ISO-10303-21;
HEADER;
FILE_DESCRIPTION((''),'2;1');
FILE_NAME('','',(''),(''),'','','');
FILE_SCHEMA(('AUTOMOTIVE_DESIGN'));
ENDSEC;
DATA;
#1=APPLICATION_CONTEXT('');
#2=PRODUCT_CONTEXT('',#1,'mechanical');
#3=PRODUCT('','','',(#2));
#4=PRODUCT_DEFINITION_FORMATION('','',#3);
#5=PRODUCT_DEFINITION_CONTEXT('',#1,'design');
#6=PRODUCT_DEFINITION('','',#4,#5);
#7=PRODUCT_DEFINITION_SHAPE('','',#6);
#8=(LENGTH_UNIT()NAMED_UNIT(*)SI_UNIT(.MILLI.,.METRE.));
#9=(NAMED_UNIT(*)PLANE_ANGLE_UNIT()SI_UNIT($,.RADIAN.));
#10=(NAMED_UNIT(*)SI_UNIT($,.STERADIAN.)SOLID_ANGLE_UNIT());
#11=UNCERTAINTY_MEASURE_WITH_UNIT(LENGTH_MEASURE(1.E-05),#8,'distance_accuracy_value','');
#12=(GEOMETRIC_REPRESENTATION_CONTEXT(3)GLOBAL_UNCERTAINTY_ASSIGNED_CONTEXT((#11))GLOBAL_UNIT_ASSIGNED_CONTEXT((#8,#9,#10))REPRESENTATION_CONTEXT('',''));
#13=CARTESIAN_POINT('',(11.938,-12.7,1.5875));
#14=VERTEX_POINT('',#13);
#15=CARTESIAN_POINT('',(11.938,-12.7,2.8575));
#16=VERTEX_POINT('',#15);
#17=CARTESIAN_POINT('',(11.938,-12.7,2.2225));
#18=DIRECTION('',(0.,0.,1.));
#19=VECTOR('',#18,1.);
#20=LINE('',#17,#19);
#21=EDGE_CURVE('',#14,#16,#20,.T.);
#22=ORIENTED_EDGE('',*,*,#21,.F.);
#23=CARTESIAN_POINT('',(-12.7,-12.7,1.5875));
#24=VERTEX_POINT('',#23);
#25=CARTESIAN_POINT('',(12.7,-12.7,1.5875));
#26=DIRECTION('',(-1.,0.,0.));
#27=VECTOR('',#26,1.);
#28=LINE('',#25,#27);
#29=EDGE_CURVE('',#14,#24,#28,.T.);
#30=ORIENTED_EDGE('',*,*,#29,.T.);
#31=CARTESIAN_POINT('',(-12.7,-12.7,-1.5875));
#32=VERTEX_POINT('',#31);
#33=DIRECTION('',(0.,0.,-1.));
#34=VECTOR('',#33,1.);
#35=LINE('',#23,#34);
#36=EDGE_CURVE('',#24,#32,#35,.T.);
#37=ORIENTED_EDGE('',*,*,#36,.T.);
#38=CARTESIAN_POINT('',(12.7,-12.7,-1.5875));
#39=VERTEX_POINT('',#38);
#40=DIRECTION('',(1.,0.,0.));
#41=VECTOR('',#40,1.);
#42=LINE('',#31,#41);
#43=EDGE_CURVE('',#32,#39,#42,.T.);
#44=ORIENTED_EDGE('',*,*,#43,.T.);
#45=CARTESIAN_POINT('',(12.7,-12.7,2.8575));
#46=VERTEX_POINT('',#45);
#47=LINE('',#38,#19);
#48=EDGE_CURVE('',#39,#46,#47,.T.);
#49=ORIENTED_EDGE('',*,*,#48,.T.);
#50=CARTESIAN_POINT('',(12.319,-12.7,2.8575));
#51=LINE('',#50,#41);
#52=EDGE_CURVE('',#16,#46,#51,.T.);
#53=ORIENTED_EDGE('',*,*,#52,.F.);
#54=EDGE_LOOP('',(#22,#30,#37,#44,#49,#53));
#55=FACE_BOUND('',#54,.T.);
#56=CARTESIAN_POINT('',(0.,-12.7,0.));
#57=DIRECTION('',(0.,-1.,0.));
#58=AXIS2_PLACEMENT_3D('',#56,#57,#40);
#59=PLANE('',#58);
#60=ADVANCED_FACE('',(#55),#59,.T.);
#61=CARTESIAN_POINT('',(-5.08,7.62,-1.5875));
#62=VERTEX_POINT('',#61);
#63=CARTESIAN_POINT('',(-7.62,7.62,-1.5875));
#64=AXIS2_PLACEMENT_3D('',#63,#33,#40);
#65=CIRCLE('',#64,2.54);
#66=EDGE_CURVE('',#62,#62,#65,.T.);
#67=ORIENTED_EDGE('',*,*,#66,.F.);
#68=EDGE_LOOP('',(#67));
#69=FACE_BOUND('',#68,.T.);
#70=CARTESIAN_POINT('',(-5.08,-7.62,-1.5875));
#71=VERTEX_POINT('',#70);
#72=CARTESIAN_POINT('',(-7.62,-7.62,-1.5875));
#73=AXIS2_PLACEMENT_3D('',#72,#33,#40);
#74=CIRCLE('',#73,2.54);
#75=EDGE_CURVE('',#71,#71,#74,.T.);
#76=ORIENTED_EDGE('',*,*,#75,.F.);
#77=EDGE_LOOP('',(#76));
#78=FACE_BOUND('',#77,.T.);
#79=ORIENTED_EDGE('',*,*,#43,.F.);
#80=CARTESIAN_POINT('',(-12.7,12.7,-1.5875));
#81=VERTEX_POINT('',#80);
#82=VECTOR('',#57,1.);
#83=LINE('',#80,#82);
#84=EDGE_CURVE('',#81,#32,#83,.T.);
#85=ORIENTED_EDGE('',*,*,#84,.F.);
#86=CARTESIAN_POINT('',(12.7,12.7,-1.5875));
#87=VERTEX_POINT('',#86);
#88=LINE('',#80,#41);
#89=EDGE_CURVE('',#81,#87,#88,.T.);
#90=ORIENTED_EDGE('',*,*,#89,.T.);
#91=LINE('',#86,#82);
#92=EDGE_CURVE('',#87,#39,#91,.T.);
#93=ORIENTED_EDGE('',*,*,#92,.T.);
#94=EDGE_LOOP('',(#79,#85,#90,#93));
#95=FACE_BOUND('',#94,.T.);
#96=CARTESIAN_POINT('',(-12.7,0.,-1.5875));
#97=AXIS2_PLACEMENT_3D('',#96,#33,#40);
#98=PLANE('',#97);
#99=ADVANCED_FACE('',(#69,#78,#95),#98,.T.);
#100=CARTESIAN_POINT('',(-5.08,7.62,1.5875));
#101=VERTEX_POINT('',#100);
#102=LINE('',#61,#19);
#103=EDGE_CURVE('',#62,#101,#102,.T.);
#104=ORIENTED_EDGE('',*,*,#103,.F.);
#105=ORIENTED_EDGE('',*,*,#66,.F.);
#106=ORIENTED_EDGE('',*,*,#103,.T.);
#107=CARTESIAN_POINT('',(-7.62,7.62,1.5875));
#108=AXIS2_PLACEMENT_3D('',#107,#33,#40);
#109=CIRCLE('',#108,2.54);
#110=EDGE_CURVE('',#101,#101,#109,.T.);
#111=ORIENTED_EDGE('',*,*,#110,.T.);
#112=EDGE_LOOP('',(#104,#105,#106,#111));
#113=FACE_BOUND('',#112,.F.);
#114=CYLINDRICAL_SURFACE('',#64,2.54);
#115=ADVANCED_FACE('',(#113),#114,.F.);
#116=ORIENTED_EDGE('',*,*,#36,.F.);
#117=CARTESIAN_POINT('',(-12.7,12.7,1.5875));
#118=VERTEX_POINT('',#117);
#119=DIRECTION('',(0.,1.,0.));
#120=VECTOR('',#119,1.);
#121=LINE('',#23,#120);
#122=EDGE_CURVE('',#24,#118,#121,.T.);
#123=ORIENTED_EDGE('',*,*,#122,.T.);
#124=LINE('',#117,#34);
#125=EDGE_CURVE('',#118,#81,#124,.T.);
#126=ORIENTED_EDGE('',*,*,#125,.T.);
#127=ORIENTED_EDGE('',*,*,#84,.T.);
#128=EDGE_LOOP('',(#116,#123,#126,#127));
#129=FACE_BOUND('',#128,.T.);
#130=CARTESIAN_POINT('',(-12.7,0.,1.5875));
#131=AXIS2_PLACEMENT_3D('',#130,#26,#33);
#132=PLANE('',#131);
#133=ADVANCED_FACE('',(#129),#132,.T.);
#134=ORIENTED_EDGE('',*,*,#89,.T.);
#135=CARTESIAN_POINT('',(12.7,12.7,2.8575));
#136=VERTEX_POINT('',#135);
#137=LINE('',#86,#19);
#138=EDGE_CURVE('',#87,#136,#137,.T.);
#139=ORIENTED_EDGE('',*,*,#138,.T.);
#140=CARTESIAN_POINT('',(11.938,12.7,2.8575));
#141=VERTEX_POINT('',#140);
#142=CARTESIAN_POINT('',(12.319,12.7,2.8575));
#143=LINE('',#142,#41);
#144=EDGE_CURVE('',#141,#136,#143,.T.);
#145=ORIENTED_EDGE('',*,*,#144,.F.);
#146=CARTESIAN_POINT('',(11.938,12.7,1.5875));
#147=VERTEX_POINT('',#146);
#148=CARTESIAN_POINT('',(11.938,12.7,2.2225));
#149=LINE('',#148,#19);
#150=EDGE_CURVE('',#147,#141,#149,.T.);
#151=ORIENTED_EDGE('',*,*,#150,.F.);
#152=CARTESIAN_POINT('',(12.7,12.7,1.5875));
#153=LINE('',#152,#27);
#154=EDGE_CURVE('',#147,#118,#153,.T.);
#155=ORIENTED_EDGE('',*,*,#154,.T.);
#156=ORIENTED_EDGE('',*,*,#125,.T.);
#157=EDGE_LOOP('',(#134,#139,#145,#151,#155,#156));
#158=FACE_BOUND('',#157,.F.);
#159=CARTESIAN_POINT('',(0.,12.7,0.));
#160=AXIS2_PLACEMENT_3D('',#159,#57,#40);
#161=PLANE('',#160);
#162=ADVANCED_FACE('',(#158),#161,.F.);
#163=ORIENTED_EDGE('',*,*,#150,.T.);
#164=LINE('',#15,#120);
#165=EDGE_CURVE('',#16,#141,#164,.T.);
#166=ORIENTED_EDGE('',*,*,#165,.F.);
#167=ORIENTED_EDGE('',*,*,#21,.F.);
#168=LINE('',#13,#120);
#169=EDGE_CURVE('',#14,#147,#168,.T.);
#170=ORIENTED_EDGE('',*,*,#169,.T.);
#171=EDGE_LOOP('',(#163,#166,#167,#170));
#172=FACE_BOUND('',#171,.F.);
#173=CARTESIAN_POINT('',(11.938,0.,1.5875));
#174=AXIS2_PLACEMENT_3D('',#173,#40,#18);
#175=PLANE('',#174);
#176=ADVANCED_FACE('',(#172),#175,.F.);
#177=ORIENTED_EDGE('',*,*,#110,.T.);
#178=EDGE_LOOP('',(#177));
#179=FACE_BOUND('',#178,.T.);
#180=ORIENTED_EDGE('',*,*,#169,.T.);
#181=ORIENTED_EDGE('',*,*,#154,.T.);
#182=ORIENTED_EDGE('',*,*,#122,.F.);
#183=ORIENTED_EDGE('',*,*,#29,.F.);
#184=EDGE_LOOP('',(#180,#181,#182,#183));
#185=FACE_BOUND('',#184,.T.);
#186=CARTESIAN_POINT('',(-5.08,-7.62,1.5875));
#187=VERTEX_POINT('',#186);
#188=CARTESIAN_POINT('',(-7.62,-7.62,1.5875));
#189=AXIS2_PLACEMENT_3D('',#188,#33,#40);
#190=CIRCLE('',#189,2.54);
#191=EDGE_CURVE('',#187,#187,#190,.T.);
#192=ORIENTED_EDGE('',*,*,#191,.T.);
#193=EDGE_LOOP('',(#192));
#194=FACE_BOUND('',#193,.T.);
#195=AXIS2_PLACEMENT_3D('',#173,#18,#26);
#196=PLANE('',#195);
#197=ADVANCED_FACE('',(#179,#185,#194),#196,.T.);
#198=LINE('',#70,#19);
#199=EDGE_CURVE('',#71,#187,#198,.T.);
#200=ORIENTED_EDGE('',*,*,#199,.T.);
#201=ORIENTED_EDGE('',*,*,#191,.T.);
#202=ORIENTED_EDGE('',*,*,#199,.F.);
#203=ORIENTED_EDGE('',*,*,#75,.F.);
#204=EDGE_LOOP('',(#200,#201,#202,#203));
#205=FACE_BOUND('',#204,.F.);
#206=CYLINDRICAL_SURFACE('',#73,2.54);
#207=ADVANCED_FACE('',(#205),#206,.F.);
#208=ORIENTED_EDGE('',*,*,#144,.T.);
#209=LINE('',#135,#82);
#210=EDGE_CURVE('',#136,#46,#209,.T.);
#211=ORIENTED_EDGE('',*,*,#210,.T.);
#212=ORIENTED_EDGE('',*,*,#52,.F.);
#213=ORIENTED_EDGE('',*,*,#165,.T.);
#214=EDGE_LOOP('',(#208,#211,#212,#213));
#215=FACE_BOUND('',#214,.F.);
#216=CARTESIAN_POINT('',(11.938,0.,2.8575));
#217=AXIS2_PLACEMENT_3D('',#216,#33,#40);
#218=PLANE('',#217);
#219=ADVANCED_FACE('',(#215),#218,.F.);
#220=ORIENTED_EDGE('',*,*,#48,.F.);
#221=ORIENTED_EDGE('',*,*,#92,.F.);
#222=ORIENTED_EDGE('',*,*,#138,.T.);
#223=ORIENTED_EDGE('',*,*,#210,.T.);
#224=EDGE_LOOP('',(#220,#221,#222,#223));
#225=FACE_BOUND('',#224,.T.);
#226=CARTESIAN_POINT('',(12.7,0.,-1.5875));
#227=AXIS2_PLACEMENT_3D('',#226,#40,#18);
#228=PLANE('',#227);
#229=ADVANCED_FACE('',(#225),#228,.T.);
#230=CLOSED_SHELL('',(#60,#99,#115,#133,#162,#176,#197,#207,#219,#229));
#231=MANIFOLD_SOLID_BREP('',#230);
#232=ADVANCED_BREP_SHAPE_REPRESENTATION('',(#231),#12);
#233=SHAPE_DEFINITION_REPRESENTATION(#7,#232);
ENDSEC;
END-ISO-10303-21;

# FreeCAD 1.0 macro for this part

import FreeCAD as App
import Part
import Sketcher

V = App.Vector
Q = App.Units.Quantity


def add_polygon(sketch, points):
    """Adds a closed chain of lines whose ends are joined by coincident constraints."""
    first, n = sketch.GeometryCount, len(points)
    for a, b in zip(points, points[1:] + points[:1]):
        sketch.addGeometry(Part.LineSegment(App.Vector(*a, 0), App.Vector(*b, 0)), False)
    for i in range(n):
        sketch.addConstraint(Sketcher.Constraint("Coincident", first + i, 2, first + (i + 1) % n, 1))

doc = App.newDocument("Part")
params = doc.addObject("Spreadsheet::Sheet", "Params")
for row, (alias, value) in enumerate([
    ("sketch1_width", "1 in"),
    ("sketch1_width2", "0.03 in"),
    ("sketch1_height", "0.05 in"),
    ("sketch1_height2", "0.125 in"),
    ("pad1_length", "1 in"),
    ("sketch2_diameter", "0.2 in"),
], start=1):
    params.set(f"A{row}", alias)
    params.set(f"B{row}", "=" + value)
    params.setAlias(f"B{row}", alias)

body = doc.addObject("PartDesign::Body", "Body")

sketch1 = body.newObject("Sketcher::SketchObject", "Sketch")
sketch1.AttachmentSupport = (doc.getObject("XZ_Plane"), [""])
sketch1.MapMode = "FlatFace"
add_polygon(sketch1, [(-12.7, 1.6), (-12.7, -1.6), (12.7, -1.6), (12.7, 2.9), (11.9, 2.9), (11.9, 1.6)])
sketch1.addConstraint(Sketcher.Constraint("Vertical", 0))
sketch1.addConstraint(Sketcher.Constraint("Horizontal", 1))
sketch1.addConstraint(Sketcher.Constraint("Vertical", 2))
sketch1.addConstraint(Sketcher.Constraint("Horizontal", 3))
sketch1.addConstraint(Sketcher.Constraint("Vertical", 4))
sketch1.addConstraint(Sketcher.Constraint("Horizontal", 5))
sketch1.addConstraint(Sketcher.Constraint("Symmetric", 1, 2, 5, 2, -1, 1))
sketch1.addConstraint(Sketcher.Constraint("DistanceX", 1, 1, 1, 2, Q("1 in")))
sketch1.addConstraint(Sketcher.Constraint("DistanceX", 3, 2, 3, 1, Q("0.03 in")))
sketch1.addConstraint(Sketcher.Constraint("DistanceY", 4, 2, 4, 1, Q("0.05 in")))
sketch1.addConstraint(Sketcher.Constraint("DistanceY", 0, 2, 0, 1, Q("0.125 in")))
sketch1.setExpression("Constraints[13]", "Params.sketch1_width")
sketch1.setExpression("Constraints[14]", "Params.sketch1_width2")
sketch1.setExpression("Constraints[15]", "Params.sketch1_height")
sketch1.setExpression("Constraints[16]", "Params.sketch1_height2")
pad1 = body.newObject("PartDesign::Pad", "Pad")
pad1.Profile = sketch1
pad1.setExpression("Length", "Params.pad1_length")
pad1.Midplane = True

sketch2 = body.newObject("Sketcher::SketchObject", "Sketch001")
sketch2.AttachmentSupport = (doc.getObject("XY_Plane"), [""])
sketch2.MapMode = "FlatFace"
sketch2.AttachmentOffset = App.Placement(V(0, 0, -0.0625 * 25.4), App.Rotation())
sketch2.addGeometry(Part.Circle(V(-7.6, -7.6, 0), V(0, 0, 1), 2.5), False)
sketch2.addGeometry(Part.Circle(V(-7.6, 7.6, 0), V(0, 0, 1), 2.5), False)
sketch2.addConstraint(Sketcher.Constraint("Equal", 0, 1))
sketch2.addConstraint(Sketcher.Constraint("Symmetric", 0, 3, 1, 3, -1))
sketch2.addConstraint(Sketcher.Constraint("Diameter", 0, Q("0.2 in")))
sketch2.addConstraint(Sketcher.Constraint("DistanceX", 0, 3, -1, 1, Q("0.3 in")))
sketch2.addConstraint(Sketcher.Constraint("DistanceY", 0, 3, -1, 1, Q("0.3 in")))
sketch2.setExpression("Constraints[2]", "Params.sketch2_diameter")
pocket1 = body.newObject("PartDesign::Pocket", "Pocket")
pocket1.Profile = sketch2
pocket1.Type = "ThroughAll"
pocket1.Reversed = True

doc.recompute()
